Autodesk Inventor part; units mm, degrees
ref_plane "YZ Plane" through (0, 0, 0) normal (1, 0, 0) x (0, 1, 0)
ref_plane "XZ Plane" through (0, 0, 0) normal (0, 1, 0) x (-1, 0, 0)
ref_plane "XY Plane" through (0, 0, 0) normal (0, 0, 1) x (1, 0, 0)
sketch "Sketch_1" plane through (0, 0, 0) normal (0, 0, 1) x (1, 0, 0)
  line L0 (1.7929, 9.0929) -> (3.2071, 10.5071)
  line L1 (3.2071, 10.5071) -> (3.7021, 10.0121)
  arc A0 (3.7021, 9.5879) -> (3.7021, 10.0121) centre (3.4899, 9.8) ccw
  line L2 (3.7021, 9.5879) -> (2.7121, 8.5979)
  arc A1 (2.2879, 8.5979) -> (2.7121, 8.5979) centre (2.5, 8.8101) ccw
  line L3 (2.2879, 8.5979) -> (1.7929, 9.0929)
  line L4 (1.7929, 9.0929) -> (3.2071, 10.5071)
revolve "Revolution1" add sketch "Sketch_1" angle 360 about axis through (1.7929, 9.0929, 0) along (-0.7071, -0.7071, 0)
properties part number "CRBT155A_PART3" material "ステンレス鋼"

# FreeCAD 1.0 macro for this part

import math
import FreeCAD as App
import Part
import Sketcher
Q = App.Units.Quantity

doc = App.newDocument("Part")
params = doc.addObject("Spreadsheet::Sheet", "Params")
for row, (alias, value) in enumerate([
    ("sketch1_radius", "0.3 mm"),
    ("sketch1_length", "2 mm"),
    ("sketch1_length2", "0.7 mm"),
    ("revolution_angle", "360 deg"),
], start=1):
    params.set(f"A{row}", alias)
    params.set(f"B{row}", "=" + value)
    params.setAlias(f"B{row}", alias)

body = doc.addObject("PartDesign::Body", "Body")

# Sketch on XY plane
sketch1 = body.newObject("Sketcher::SketchObject", "Sketch")
sketch1.AttachmentSupport = (doc.getObject("XY_Plane"), [""])
sketch1.MapMode = "FlatFace"
sketch1.addGeometry([
    Part.LineSegment(App.Vector(3.21, 10.51, 0), App.Vector(1.79, 9.09, 0)),  # 0
    Part.LineSegment(App.Vector(1.79, 9.09, 0), App.Vector(2.29, 8.6, 0)),  # 1
    Part.ArcOfCircle(Part.Circle(App.Vector(2.5, 8.81, 0), App.Vector(0, 0, 1), 0.3), math.radians(-135), math.radians(-45)),  # 2
    Part.LineSegment(App.Vector(2.71, 8.6, 0), App.Vector(3.7, 9.59, 0)),  # 3
    Part.ArcOfCircle(Part.Circle(App.Vector(3.49, 9.8, 0), App.Vector(0, 0, 1), 0.3), math.radians(-45), math.radians(45)),  # 4
    Part.LineSegment(App.Vector(3.7, 10.01, 0), App.Vector(3.21, 10.51, 0)),  # 5
], False)
sketch1.addGeometry(Part.LineSegment(App.Vector(3.21, 10.51, 0), App.Vector(1.79, 9.09, 0)), True)  # axis
sketch1.addConstraint([
    Sketcher.Constraint("Coincident", 0, 2, 1, 1),
    Sketcher.Constraint("Tangent", 1, 2, 2, 1),
    Sketcher.Constraint("Tangent", 2, 2, 3, 1),
    Sketcher.Constraint("Tangent", 3, 2, 4, 1),
    Sketcher.Constraint("Tangent", 4, 2, 5, 1),
    Sketcher.Constraint("Coincident", 5, 2, 0, 1),
    Sketcher.Constraint("Coincident", 6, 1, 5, 2),
    Sketcher.Constraint("Coincident", 6, 2, 0, 2),
    Sketcher.Constraint("Equal", 2, 4),
    Sketcher.Constraint("Perpendicular", 0, 1),
    Sketcher.Constraint("Perpendicular", 1, 3),
    Sketcher.Constraint("Perpendicular", 3, 5),
    Sketcher.Constraint("Horizontal", 1, 2, 2, 2),
    Sketcher.Constraint("Radius", 2, Q("0.3 mm")),
    Sketcher.Constraint("Distance", 0, Q("2 mm")),
    Sketcher.Constraint("Distance", 1, Q("0.7 mm")),
    Sketcher.Constraint("DistanceX", -1, 1, 2, 3, Q("2.5 mm")),
    Sketcher.Constraint("DistanceY", -1, 1, 4, 3, Q("9.8 mm")),
])
sketch1.setExpression("Constraints[13]", "Params.sketch1_radius")
sketch1.setExpression("Constraints[14]", "Params.sketch1_length")
sketch1.setExpression("Constraints[15]", "Params.sketch1_length2")
revolution = body.newObject("PartDesign::Revolution", "Revolution")
revolution.Profile = sketch1
revolution.ReferenceAxis = (sketch1, ["Axis0"])
revolution.setExpression("Angle", "Params.revolution_angle")

doc.recompute()
